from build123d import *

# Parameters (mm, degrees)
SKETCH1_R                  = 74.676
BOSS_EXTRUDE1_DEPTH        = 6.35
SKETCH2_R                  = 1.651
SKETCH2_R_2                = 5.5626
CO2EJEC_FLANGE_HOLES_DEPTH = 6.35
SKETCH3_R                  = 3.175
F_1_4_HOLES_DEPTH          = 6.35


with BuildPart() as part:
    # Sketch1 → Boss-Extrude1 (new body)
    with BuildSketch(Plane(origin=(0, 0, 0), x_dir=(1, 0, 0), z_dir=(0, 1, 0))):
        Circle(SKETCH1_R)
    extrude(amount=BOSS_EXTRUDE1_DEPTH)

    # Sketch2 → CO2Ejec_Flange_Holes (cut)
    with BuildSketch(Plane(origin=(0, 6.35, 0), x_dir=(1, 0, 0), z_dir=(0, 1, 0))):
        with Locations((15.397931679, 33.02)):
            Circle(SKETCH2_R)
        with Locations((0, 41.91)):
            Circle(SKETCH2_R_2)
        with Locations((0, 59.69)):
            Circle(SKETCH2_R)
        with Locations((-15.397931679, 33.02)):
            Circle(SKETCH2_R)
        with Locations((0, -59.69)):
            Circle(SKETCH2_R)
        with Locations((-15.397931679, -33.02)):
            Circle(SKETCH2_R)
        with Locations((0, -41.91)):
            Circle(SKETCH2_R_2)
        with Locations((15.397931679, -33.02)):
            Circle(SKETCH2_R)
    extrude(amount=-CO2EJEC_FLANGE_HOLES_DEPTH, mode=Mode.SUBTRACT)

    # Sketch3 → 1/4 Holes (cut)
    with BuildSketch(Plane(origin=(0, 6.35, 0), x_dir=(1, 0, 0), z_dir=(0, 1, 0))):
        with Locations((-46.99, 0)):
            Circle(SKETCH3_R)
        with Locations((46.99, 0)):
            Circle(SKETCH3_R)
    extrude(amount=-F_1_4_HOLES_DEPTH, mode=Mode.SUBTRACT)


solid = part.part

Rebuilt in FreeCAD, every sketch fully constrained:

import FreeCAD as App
import Part
import Sketcher
Q = App.Units.Quantity

doc = App.newDocument("Part")
body = doc.addObject("PartDesign::Body", "Body")

sketch1 = doc.addObject("Sketcher::SketchObject", "Sketch")
body.addObject(sketch1)
sketch1.AttachmentSupport = (doc.XZ_Plane, [""])
sketch1.MapMode = "FlatFace"
sketch1.addGeometry(Part.Circle(App.Vector(0, 0, 0), App.Vector(0, 0, 1), 75), False)
sketch1.addConstraint(Sketcher.Constraint("Coincident", 0, 3, -1, 1))
sketch1.addConstraint(Sketcher.Constraint("Diameter", 0, Q("5.88 in")))
pad1 = doc.addObject("PartDesign::Pad", "Pad")
body.addObject(pad1)
pad1.Profile = sketch1
pad1.Length = Q("0.25 in")
pad1.Reversed = True

sketch2 = doc.addObject("Sketcher::SketchObject", "Sketch001")
body.addObject(sketch2)
sketch2.AttachmentSupport = (doc.XZ_Plane, [""])
sketch2.MapMode = "FlatFace"
sketch2.AttachmentOffset = App.Placement(App.Vector(0, 0, -0.25 * 25.4), App.Rotation())
sketch2.addGeometry(Part.Circle(App.Vector(15.4, -33, 0), App.Vector(0, 0, 1), 1.7), False)
sketch2.addGeometry(Part.Circle(App.Vector(0, -41.9, 0), App.Vector(0, 0, 1), 5.6), False)
sketch2.addGeometry(Part.Circle(App.Vector(0, -59.7, 0), App.Vector(0, 0, 1), 1.7), False)
sketch2.addGeometry(Part.Circle(App.Vector(-15.4, -33, 0), App.Vector(0, 0, 1), 1.7), False)
sketch2.addGeometry(Part.Circle(App.Vector(0, 59.7, 0), App.Vector(0, 0, 1), 1.7), False)
sketch2.addGeometry(Part.Circle(App.Vector(-15.4, 33, 0), App.Vector(0, 0, 1), 1.7), False)
sketch2.addGeometry(Part.Circle(App.Vector(0, 41.9, 0), App.Vector(0, 0, 1), 5.6), False)
sketch2.addGeometry(Part.Circle(App.Vector(15.4, 33, 0), App.Vector(0, 0, 1), 1.7), False)
sketch2.addConstraint(Sketcher.Constraint("Equal", 0, 2))
sketch2.addConstraint(Sketcher.Constraint("Equal", 2, 3))
sketch2.addConstraint(Sketcher.Constraint("Equal", 3, 4))
sketch2.addConstraint(Sketcher.Constraint("Equal", 4, 5))
sketch2.addConstraint(Sketcher.Constraint("Equal", 1, 6))
sketch2.addConstraint(Sketcher.Constraint("Equal", 5, 7))
sketch2.addConstraint(Sketcher.Constraint("Symmetric", 2, 3, 4, 3, -1, 1))
sketch2.addConstraint(Sketcher.Constraint("Symmetric", 0, 3, 5, 3, -1, 1))
sketch2.addConstraint(Sketcher.Constraint("Symmetric", 1, 3, 6, 3, -1, 1))
sketch2.addConstraint(Sketcher.Constraint("Symmetric", 3, 3, 7, 3, -1, 1))
sketch2.addConstraint(Sketcher.Constraint("Symmetric", 0, 3, 3, 3, -2))
sketch2.addConstraint(Sketcher.Constraint("PointOnObject", 1, 3, -2))
sketch2.addConstraint(Sketcher.Constraint("PointOnObject", 2, 3, -2))
sketch2.addConstraint(Sketcher.Constraint("Diameter", 0, Q("0.13 in")))
sketch2.addConstraint(Sketcher.Constraint("Diameter", 1, Q("0.438 in")))
sketch2.addConstraint(Sketcher.Constraint("DistanceY", 1, 3, 4, 3, Q("4 in")))
sketch2.addConstraint(Sketcher.Constraint("DistanceY", 0, 3, -1, 1, Q("1.3 in")))
sketch2.addConstraint(Sketcher.Constraint("DistanceY", 2, 3, 1, 3, Q("0.7 in")))
sketch2.addConstraint(Sketcher.Constraint("DistanceX", -1, 1, 0, 3, 15.397932))
pocket1 = doc.addObject("PartDesign::Pocket", "Pocket")
body.addObject(pocket1)
pocket1.Profile = sketch2
pocket1.Length = Q("0.25 in")
pocket1.Reversed = True

sketch3 = doc.addObject("Sketcher::SketchObject", "Sketch002")
body.addObject(sketch3)
sketch3.AttachmentSupport = (doc.XZ_Plane, [""])
sketch3.MapMode = "FlatFace"
sketch3.AttachmentOffset = App.Placement(App.Vector(0, 0, -0.25 * 25.4), App.Rotation())
sketch3.addGeometry(Part.Circle(App.Vector(-47, 0, 0), App.Vector(0, 0, 1), 3.2), False)
sketch3.addGeometry(Part.Circle(App.Vector(47, 0, 0), App.Vector(0, 0, 1), 3.2), False)
sketch3.addConstraint(Sketcher.Constraint("Equal", 0, 1))
sketch3.addConstraint(Sketcher.Constraint("Symmetric", 0, 3, 1, 3, -1, 1))
sketch3.addConstraint(Sketcher.Constraint("PointOnObject", 0, 3, -1))
sketch3.addConstraint(Sketcher.Constraint("Diameter", 0, Q("0.25 in")))
sketch3.addConstraint(Sketcher.Constraint("DistanceX", 0, 3, 1, 3, Q("3.7 in")))
pocket2 = doc.addObject("PartDesign::Pocket", "Pocket001")
body.addObject(pocket2)
pocket2.Profile = sketch3
pocket2.Length = Q("0.25 in")
pocket2.Reversed = True

doc.recompute()
